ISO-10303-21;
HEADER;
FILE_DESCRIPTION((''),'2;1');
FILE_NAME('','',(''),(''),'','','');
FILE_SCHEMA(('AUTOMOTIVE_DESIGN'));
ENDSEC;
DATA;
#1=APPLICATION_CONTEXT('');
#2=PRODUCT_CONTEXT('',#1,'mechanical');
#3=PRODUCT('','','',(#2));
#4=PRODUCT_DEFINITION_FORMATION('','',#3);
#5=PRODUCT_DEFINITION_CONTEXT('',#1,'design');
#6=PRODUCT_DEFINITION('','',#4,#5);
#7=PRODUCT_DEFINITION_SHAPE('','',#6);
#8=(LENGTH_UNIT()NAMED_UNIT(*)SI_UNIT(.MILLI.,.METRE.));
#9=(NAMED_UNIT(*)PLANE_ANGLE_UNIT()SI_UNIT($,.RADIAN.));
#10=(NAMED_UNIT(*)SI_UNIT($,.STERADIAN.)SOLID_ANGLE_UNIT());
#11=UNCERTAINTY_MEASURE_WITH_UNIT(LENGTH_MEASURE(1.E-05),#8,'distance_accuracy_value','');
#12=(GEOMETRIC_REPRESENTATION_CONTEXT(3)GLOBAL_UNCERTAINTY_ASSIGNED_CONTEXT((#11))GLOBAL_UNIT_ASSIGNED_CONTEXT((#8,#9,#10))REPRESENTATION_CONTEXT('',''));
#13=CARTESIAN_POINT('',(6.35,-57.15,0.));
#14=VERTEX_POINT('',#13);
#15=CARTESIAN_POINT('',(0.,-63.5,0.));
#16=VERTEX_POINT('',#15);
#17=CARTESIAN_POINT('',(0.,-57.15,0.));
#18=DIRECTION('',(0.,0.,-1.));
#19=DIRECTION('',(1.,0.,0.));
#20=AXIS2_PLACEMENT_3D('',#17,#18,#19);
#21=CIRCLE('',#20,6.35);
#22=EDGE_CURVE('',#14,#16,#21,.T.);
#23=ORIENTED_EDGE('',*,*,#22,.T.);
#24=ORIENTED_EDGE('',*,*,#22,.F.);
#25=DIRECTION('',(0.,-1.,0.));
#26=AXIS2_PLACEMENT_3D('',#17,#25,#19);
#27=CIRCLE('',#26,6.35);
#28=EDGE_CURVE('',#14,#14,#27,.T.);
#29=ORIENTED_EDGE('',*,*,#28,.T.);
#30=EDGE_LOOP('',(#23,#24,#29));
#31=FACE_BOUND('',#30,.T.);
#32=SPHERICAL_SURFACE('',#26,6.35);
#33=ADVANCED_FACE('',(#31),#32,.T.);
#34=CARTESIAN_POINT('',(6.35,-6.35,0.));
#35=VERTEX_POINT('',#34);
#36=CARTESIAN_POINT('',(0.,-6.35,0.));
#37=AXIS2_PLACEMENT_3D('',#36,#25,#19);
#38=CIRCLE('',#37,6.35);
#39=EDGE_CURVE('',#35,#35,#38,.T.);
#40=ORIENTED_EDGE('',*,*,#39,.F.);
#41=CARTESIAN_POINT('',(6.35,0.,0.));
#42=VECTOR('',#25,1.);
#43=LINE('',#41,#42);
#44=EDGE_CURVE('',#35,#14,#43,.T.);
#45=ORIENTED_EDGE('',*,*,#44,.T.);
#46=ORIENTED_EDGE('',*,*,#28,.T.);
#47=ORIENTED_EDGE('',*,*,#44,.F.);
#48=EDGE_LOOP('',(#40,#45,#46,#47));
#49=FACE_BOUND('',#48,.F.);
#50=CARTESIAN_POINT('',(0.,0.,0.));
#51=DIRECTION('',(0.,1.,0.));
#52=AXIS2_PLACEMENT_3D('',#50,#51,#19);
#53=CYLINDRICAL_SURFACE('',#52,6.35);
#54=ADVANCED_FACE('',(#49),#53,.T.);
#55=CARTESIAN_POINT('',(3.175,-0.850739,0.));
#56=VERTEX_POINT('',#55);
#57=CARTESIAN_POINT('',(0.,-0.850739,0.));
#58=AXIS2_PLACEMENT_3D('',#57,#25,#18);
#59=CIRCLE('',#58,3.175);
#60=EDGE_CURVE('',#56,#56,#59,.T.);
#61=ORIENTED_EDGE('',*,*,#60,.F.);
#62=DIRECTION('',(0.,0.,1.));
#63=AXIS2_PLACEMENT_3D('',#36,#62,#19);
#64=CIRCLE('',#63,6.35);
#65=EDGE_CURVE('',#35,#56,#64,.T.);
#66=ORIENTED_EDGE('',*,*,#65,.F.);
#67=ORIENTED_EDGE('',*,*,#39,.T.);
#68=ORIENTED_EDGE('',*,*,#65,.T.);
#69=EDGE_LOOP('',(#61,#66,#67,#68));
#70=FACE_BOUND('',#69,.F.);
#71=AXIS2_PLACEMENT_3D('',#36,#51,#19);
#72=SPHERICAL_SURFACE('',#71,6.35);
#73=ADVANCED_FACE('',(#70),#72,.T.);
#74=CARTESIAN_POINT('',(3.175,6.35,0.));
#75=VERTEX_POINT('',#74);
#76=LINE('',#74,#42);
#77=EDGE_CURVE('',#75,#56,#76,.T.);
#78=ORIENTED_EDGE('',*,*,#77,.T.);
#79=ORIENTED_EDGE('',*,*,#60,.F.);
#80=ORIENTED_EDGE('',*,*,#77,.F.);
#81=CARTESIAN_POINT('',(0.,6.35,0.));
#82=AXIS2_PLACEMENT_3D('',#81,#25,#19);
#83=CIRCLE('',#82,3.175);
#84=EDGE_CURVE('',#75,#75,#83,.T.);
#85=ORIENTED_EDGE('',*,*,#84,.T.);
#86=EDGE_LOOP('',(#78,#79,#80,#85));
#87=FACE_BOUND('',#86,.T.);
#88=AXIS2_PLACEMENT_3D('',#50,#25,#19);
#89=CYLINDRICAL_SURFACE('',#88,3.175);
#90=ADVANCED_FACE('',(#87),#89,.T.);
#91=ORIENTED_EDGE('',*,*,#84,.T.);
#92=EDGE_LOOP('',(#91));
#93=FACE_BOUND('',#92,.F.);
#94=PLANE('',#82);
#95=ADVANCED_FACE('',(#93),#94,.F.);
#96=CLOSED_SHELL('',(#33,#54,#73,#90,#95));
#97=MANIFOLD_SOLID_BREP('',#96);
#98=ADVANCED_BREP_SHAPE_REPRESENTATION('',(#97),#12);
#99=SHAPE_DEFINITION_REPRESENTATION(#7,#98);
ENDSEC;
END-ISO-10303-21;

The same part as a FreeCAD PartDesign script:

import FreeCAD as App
import Part
import Sketcher
Q = App.Units.Quantity


def edges_at(feature, points):
    """Names of the edges that pass closest to the given points."""
    edges = feature.Shape.Edges
    near = lambda p: min(range(len(edges)), key=lambda i: edges[i].distToShape(Part.Vertex(*p))[0])
    return sorted({f"Edge{near(p) + 1}" for p in points})

doc = App.newDocument("Part")
body = doc.addObject("PartDesign::Body", "Body")

# Sketch on XZ plane
sketch1 = body.newObject("Sketcher::SketchObject", "Sketch")
sketch1.AttachmentSupport = (doc.getObject("XZ_Plane"), [""])
sketch1.MapMode = "FlatFace"
sketch1.addGeometry(Part.Circle(App.Vector(0, 0, 0), App.Vector(0, 0, 1), 6), False)
sketch1.addConstraint([
    Sketcher.Constraint("Coincident", 0, 3, -1, 1),
    Sketcher.Constraint("Diameter", 0, Q("0.5 in")),
])
pad1 = body.newObject("PartDesign::Pad", "Pad")
pad1.Profile = sketch1
pad1.Length = Q("2.5 in")
doc.recompute()

fillet = body.newObject("PartDesign::Fillet", "Fillet")
fillet.Base = (pad1, edges_at(pad1, [(-6.35, -63.5, 0), (-6.35, 0, 0)]))
fillet.Radius = Q("0.25 in")

# Sketch on XZ plane
sketch2 = body.newObject("Sketcher::SketchObject", "Sketch001")
sketch2.AttachmentSupport = (doc.getObject("XZ_Plane"), [""])
sketch2.MapMode = "FlatFace"
sketch2.addGeometry(Part.Circle(App.Vector(0, 0, 0), App.Vector(0, 0, 1), 3.2), False)
sketch2.addConstraint([
    Sketcher.Constraint("Coincident", 0, 3, -1, 1),
    Sketcher.Constraint("Diameter", 0, Q("0.25 in")),
])
pad2 = body.newObject("PartDesign::Pad", "Pad001")
pad2.Profile = sketch2
pad2.Length = Q("0.5 in")
pad2.Midplane = True

doc.recompute()
